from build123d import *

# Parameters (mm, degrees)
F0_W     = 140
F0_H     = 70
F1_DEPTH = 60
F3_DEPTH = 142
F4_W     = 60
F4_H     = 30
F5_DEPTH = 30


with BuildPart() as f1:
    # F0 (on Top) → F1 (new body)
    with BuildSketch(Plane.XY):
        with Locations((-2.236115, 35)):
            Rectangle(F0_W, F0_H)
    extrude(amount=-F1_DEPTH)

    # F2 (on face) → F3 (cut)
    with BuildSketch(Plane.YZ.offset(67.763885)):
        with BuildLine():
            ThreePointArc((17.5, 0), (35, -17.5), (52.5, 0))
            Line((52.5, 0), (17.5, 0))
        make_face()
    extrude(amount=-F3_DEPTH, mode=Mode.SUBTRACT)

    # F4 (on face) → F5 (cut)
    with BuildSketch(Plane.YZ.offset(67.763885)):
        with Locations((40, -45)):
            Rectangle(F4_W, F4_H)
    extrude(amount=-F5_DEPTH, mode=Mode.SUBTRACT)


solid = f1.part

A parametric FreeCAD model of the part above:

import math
import FreeCAD as App
import Part
import Sketcher
from FreeCAD import Vector

doc = App.newDocument("Part")
body = doc.addObject("PartDesign::Body", "Body")

# Sketch on XY plane
sketch1 = body.newObject("Sketcher::SketchObject", "Sketch")
sketch1.AttachmentSupport = (doc.getObject("XY_Plane"), [""])
sketch1.MapMode = "FlatFace"
sketch1.addGeometry([
    Part.LineSegment(Vector(-72, 70, 0), Vector(-72, 0, 0)),
    Part.LineSegment(Vector(-72, 0, 0), Vector(68, 0, 0)),
    Part.LineSegment(Vector(68, 0, 0), Vector(68, 70, 0)),
    Part.LineSegment(Vector(68, 70, 0), Vector(-72, 70, 0)),
], False)
sketch1.addConstraint([
    Sketcher.Constraint("Coincident", 0, 2, 1, 1),
    Sketcher.Constraint("Coincident", 1, 2, 2, 1),
    Sketcher.Constraint("Coincident", 2, 2, 3, 1),
    Sketcher.Constraint("Coincident", 3, 2, 0, 1),
    Sketcher.Constraint("Vertical", 0),
    Sketcher.Constraint("Horizontal", 1),
    Sketcher.Constraint("Vertical", 2),
    Sketcher.Constraint("Horizontal", 3),
    Sketcher.Constraint("PointOnObject", 0, 2, -1),
    Sketcher.Constraint("DistanceX", 1, 1, 1, 2, 140.0),
    Sketcher.Constraint("DistanceY", 0, 2, 0, 1, 70.0),
    Sketcher.Constraint("DistanceX", 0, 2, -1, 1, 72.236115),
])
pad1 = body.newObject("PartDesign::Pad", "Pad")
pad1.Profile = sketch1
pad1.Length = 60
pad1.Reversed = True

# Sketch on YZ plane
sketch2 = body.newObject("Sketcher::SketchObject", "Sketch001")
sketch2.AttachmentSupport = (doc.getObject("YZ_Plane"), [""])
sketch2.MapMode = "FlatFace"
sketch2.AttachmentOffset = App.Placement(Vector(0, 0, 67.763885), App.Rotation())
sketch2.addGeometry([
    Part.ArcOfCircle(Part.Circle(Vector(35, 0, 0), Vector(0, 0, 1), 18), math.radians(180), math.radians(360)),
    Part.LineSegment(Vector(52, 0, 0), Vector(18, 0, 0)),
], False)
sketch2.addConstraint([
    Sketcher.Constraint("Coincident", 0, 1, 1, 2),
    Sketcher.Constraint("Coincident", 1, 1, 0, 2),
    Sketcher.Constraint("Horizontal", 1),
    Sketcher.Constraint("PointOnObject", 0, 3, -1),
    Sketcher.Constraint("PointOnObject", 0, 1, -1),
    Sketcher.Constraint("Radius", 0, 17.5),
    Sketcher.Constraint("DistanceX", -1, 1, 0, 3, 35.0),
])
pocket1 = body.newObject("PartDesign::Pocket", "Pocket")
pocket1.Profile = sketch2
pocket1.Length = 142

# Sketch on YZ plane
sketch3 = body.newObject("Sketcher::SketchObject", "Sketch002")
sketch3.AttachmentSupport = (doc.getObject("YZ_Plane"), [""])
sketch3.MapMode = "FlatFace"
sketch3.AttachmentOffset = App.Placement(Vector(0, 0, 67.763885), App.Rotation())
sketch3.addGeometry([
    Part.LineSegment(Vector(10, -30, 0), Vector(10, -60, 0)),
    Part.LineSegment(Vector(10, -60, 0), Vector(70, -60, 0)),
    Part.LineSegment(Vector(70, -60, 0), Vector(70, -30, 0)),
    Part.LineSegment(Vector(70, -30, 0), Vector(10, -30, 0)),
], False)
sketch3.addConstraint([
    Sketcher.Constraint("Coincident", 0, 2, 1, 1),
    Sketcher.Constraint("Coincident", 1, 2, 2, 1),
    Sketcher.Constraint("Coincident", 2, 2, 3, 1),
    Sketcher.Constraint("Coincident", 3, 2, 0, 1),
    Sketcher.Constraint("Vertical", 0),
    Sketcher.Constraint("Horizontal", 1),
    Sketcher.Constraint("Vertical", 2),
    Sketcher.Constraint("Horizontal", 3),
    Sketcher.Constraint("DistanceX", 1, 1, 1, 2, 60.0),
    Sketcher.Constraint("DistanceY", 0, 2, 0, 1, 30.0),
    Sketcher.Constraint("DistanceX", -1, 1, 0, 2, 10.0),
    Sketcher.Constraint("DistanceY", 0, 2, -1, 1, 60.0),
])
pocket2 = body.newObject("PartDesign::Pocket", "Pocket001")
pocket2.Profile = sketch3
pocket2.Length = 30

doc.recompute()
